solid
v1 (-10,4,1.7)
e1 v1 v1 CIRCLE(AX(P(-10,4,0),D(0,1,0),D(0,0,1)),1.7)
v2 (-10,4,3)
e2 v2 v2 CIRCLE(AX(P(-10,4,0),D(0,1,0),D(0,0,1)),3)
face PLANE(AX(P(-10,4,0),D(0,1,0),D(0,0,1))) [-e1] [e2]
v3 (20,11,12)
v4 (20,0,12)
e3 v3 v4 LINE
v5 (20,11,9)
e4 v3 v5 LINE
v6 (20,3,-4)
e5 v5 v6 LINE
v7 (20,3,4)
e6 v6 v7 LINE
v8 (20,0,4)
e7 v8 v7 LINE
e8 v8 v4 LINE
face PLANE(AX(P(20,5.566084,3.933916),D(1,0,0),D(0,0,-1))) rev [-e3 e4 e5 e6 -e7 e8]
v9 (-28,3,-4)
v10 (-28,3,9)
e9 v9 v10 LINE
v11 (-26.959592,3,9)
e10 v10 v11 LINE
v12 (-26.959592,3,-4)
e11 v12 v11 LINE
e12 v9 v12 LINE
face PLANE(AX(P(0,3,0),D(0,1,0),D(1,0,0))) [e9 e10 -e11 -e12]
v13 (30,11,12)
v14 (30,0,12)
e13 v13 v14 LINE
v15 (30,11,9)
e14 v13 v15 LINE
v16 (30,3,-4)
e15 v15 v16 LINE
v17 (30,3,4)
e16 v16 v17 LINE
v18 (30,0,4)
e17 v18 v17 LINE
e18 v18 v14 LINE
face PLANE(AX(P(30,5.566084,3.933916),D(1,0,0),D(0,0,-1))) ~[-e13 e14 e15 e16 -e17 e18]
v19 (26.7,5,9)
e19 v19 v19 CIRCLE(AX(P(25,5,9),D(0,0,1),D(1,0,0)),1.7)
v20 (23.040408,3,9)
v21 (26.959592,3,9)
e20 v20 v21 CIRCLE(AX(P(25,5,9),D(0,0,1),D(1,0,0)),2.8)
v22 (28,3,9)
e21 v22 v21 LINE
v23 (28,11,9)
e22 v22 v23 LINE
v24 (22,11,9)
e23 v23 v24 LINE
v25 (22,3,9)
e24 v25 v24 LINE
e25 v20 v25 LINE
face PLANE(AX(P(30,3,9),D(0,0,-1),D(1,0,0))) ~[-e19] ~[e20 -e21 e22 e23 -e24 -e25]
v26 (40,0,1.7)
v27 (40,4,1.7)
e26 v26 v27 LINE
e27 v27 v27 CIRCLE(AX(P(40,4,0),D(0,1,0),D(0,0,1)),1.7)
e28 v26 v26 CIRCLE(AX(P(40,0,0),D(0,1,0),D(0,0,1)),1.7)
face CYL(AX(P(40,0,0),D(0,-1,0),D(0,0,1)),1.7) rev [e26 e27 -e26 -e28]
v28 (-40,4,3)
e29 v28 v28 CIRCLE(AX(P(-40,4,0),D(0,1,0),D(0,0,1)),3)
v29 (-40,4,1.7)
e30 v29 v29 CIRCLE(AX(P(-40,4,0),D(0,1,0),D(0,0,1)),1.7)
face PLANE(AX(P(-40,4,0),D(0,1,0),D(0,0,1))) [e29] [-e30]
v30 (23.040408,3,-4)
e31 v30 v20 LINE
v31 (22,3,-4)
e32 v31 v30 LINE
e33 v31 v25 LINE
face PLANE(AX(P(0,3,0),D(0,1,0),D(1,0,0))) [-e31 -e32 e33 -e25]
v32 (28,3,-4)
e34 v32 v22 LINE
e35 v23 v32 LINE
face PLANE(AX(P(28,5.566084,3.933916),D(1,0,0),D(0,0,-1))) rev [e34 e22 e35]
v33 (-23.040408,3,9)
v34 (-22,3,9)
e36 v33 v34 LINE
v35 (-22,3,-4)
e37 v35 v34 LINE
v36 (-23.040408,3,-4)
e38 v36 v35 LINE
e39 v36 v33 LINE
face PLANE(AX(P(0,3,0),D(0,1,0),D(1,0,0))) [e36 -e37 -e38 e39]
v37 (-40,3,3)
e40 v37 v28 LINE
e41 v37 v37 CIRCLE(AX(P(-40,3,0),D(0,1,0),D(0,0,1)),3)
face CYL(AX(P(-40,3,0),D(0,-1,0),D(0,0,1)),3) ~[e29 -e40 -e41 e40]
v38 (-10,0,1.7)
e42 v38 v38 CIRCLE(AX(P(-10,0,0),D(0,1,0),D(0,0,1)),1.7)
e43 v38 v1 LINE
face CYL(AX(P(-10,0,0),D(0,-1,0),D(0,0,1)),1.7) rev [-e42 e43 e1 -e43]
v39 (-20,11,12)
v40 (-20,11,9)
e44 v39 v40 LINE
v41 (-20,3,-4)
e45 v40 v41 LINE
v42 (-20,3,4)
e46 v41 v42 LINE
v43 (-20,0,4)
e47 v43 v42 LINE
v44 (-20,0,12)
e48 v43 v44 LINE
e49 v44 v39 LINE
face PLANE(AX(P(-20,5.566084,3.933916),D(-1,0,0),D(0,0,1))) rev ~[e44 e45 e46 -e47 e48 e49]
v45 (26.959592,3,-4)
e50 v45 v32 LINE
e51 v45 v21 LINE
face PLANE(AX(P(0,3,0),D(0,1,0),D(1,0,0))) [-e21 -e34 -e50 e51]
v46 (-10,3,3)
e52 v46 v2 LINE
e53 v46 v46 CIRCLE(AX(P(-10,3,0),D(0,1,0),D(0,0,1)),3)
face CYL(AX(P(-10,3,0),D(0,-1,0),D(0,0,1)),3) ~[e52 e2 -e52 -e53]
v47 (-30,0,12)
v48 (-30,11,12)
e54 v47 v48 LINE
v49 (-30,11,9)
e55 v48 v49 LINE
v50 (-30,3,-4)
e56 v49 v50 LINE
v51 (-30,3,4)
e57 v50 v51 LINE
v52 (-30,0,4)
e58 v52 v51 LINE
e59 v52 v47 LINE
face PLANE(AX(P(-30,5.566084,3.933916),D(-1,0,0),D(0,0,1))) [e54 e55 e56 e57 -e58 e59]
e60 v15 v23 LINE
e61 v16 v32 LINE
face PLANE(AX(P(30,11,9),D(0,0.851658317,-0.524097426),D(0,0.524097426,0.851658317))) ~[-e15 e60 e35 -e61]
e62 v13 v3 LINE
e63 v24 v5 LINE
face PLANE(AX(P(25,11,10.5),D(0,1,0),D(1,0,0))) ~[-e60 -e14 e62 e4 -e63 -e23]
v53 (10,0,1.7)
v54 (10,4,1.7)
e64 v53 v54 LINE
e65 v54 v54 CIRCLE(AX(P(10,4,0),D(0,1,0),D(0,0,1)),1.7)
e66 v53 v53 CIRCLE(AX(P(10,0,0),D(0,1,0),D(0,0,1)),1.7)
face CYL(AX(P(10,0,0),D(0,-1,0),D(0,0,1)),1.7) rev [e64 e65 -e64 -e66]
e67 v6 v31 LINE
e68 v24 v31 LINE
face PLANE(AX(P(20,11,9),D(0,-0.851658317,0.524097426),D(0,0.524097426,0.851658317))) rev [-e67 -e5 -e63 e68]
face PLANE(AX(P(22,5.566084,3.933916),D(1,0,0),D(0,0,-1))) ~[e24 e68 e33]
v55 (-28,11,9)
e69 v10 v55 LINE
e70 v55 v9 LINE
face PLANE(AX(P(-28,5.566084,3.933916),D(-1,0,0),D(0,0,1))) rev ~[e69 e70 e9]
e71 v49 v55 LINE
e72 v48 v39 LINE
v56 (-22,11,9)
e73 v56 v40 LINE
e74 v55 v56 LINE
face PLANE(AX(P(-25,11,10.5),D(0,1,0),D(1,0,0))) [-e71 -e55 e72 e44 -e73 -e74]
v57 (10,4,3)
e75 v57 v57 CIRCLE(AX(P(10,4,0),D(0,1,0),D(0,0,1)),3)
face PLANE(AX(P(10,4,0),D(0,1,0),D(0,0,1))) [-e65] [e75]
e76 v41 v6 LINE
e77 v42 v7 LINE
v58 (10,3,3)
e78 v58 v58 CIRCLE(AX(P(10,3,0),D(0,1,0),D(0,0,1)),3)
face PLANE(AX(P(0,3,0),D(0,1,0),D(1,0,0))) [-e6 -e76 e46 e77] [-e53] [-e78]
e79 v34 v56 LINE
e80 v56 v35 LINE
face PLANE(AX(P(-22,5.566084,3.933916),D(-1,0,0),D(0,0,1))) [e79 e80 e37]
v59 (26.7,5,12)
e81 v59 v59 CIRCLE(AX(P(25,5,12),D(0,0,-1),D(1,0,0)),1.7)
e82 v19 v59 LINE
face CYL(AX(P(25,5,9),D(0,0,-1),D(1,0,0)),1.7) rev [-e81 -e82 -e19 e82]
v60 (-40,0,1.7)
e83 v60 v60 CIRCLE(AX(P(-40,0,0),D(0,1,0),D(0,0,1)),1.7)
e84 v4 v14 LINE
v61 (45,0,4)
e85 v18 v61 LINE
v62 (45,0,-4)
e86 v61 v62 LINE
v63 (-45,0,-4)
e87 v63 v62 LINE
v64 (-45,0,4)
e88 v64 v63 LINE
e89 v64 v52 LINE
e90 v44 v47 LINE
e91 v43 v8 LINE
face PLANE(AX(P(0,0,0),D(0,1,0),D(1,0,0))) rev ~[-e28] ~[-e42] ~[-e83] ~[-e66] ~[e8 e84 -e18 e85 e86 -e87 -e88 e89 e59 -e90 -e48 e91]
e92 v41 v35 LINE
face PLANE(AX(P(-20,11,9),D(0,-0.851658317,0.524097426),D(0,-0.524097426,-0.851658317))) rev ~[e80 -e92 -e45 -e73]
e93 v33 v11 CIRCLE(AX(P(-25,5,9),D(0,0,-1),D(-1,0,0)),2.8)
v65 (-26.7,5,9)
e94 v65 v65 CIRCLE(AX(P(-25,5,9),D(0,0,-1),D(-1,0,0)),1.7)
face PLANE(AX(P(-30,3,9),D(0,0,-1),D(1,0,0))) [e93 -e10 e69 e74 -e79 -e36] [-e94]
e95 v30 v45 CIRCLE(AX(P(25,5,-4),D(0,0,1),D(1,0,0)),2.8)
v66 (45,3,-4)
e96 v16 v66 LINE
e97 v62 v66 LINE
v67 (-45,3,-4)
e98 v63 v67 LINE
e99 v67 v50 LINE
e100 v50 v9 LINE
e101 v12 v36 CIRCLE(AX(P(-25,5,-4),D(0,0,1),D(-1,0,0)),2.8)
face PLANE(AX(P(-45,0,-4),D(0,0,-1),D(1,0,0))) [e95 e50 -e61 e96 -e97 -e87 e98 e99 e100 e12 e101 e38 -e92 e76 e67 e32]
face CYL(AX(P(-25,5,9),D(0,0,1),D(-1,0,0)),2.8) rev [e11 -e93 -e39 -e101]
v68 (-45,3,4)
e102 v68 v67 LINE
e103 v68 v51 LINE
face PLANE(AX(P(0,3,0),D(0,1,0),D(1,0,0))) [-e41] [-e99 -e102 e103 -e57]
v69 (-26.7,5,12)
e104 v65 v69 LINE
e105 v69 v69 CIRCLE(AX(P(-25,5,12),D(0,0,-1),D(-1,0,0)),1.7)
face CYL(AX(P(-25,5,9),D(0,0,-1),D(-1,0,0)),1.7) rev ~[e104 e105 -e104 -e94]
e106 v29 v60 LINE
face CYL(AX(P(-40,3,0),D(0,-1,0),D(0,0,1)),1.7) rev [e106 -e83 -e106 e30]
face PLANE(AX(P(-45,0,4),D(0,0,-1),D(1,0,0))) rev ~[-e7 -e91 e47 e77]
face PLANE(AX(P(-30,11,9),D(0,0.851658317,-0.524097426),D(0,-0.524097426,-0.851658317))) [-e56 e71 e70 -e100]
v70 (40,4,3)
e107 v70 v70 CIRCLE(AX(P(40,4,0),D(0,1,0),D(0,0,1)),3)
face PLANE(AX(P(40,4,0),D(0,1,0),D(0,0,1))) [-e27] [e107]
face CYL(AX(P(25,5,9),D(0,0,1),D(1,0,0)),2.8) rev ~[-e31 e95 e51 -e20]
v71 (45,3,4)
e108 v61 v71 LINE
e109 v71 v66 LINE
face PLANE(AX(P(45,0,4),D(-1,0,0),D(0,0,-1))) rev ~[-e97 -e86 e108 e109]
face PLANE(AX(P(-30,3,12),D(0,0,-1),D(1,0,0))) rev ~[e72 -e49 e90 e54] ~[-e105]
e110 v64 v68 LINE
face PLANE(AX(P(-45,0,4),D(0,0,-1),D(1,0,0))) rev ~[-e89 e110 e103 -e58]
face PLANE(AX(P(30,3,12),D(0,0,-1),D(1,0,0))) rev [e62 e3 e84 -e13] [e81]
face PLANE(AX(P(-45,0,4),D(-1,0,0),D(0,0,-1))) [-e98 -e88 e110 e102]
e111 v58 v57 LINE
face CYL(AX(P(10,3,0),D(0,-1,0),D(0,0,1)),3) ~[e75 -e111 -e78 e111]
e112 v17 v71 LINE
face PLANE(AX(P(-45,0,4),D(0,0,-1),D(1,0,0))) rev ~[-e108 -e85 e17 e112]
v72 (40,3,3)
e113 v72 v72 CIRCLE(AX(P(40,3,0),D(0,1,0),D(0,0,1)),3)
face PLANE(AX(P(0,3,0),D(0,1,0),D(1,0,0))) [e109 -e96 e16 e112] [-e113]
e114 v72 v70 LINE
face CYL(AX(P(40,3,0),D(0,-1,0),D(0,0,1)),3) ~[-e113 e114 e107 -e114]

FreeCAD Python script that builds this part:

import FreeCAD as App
import Part
import Sketcher
from FreeCAD import Vector
Q = App.Units.Quantity

doc = App.newDocument("Part")
body = doc.addObject("PartDesign::Body", "Body")

sketch1 = doc.addObject("Sketcher::SketchObject", "Sketch")
body.addObject(sketch1)
sketch1.AttachmentSupport = (doc.XZ_Plane, [""])
sketch1.MapMode = "FlatFace"
sketch1.addGeometry([
    Part.LineSegment(Vector(-45, -4, 0), Vector(-45, 4, 0)),
    Part.LineSegment(Vector(-45, 4, 0), Vector(45, 4, 0)),
    Part.LineSegment(Vector(45, 4, 0), Vector(45, -4, 0)),
    Part.LineSegment(Vector(45, -4, 0), Vector(-45, -4, 0)),
    Part.Circle(Vector(-40, 0, 0), Vector(0, 0, 1), 1.7),
    Part.Circle(Vector(-10, 0, 0), Vector(0, 0, 1), 1.7),
    Part.Circle(Vector(10, 0, 0), Vector(0, 0, 1), 1.7),
    Part.Circle(Vector(40, 0, 0), Vector(0, 0, 1), 1.7),
], False)
sketch1.addConstraint([
    Sketcher.Constraint("Coincident", 0, 2, 1, 1),
    Sketcher.Constraint("Coincident", 1, 2, 2, 1),
    Sketcher.Constraint("Coincident", 2, 2, 3, 1),
    Sketcher.Constraint("Coincident", 3, 2, 0, 1),
    Sketcher.Constraint("Vertical", 0),
    Sketcher.Constraint("Horizontal", 1),
    Sketcher.Constraint("Vertical", 2),
    Sketcher.Constraint("Horizontal", 3),
    Sketcher.Constraint("Equal", 4, 5),
    Sketcher.Constraint("Equal", 5, 6),
    Sketcher.Constraint("Equal", 6, 7),
    Sketcher.Constraint("Symmetric", 5, 3, 6, 3, -1, 1),
    Sketcher.Constraint("Symmetric", 4, 3, 7, 3, -1, 1),
    Sketcher.Constraint("Symmetric", 0, 2, 2, 2, -1, 1),
    Sketcher.Constraint("PointOnObject", 4, 3, -1),
    Sketcher.Constraint("PointOnObject", 5, 3, -1),
    Sketcher.Constraint("Diameter", 4, Q("3.4 mm")),
    Sketcher.Constraint("DistanceX", 1, 1, 1, 2, Q("90 mm")),
    Sketcher.Constraint("DistanceY", 0, 1, 0, 2, Q("8 mm")),
    Sketcher.Constraint("DistanceX", 4, 3, -1, 1, Q("40 mm")),
    Sketcher.Constraint("DistanceX", 5, 3, -1, 1, Q("10 mm")),
])
pad1 = doc.addObject("PartDesign::Pad", "Pad")
body.addObject(pad1)
pad1.Profile = sketch1
pad1.Length = 3
pad1.Reversed = True

sketch2 = doc.addObject("Sketcher::SketchObject", "Sketch001")
body.addObject(sketch2)
sketch2.AttachmentSupport = (doc.XY_Plane, [""])
sketch2.MapMode = "FlatFace"
sketch2.AttachmentOffset = App.Placement(Vector(0, 0, 4), App.Rotation())
sketch2.addGeometry([
    Part.LineSegment(Vector(-20, 3, 0), Vector(-20, 0, 0)),
    Part.LineSegment(Vector(-20, 0, 0), Vector(-30, 0, 0)),
    Part.LineSegment(Vector(-30, 0, 0), Vector(-30, 3, 0)),
    Part.LineSegment(Vector(-30, 3, 0), Vector(-20, 3, 0)),
], False)
sketch2.addConstraint([
    Sketcher.Constraint("Coincident", 0, 2, 1, 1),
    Sketcher.Constraint("Coincident", 1, 2, 2, 1),
    Sketcher.Constraint("Coincident", 2, 2, 3, 1),
    Sketcher.Constraint("Coincident", 3, 2, 0, 1),
    Sketcher.Constraint("Vertical", 0),
    Sketcher.Constraint("Horizontal", 1),
    Sketcher.Constraint("Vertical", 2),
    Sketcher.Constraint("Horizontal", 3),
    Sketcher.Constraint("PointOnObject", 0, 2, -1),
    Sketcher.Constraint("DistanceX", 1, 2, 1, 1, Q("10 mm")),
    Sketcher.Constraint("DistanceY", 0, 2, 0, 1, Q("3 mm")),
    Sketcher.Constraint("DistanceX", 0, 2, -1, 1, Q("20 mm")),
])
pad2 = doc.addObject("PartDesign::Pad", "Pad001")
body.addObject(pad2)
pad2.Profile = sketch2
pad2.Length = 8

sketch3 = doc.addObject("Sketcher::SketchObject", "Sketch002")
body.addObject(sketch3)
sketch3.AttachmentSupport = (doc.XZ_Plane, [""])
sketch3.MapMode = "FlatFace"
sketch3.AttachmentOffset = App.Placement(Vector(0, 0, -3), App.Rotation())
sketch3.addGeometry([
    Part.LineSegment(Vector(-30, 9, 0), Vector(-30, 12, 0)),
    Part.LineSegment(Vector(-30, 12, 0), Vector(-20, 12, 0)),
    Part.LineSegment(Vector(-20, 12, 0), Vector(-20, 9, 0)),
    Part.LineSegment(Vector(-20, 9, 0), Vector(-30, 9, 0)),
], False)
sketch3.addConstraint([
    Sketcher.Constraint("Coincident", 0, 2, 1, 1),
    Sketcher.Constraint("Coincident", 1, 2, 2, 1),
    Sketcher.Constraint("Coincident", 2, 2, 3, 1),
    Sketcher.Constraint("Coincident", 3, 2, 0, 1),
    Sketcher.Constraint("Vertical", 0),
    Sketcher.Constraint("Horizontal", 1),
    Sketcher.Constraint("Vertical", 2),
    Sketcher.Constraint("Horizontal", 3),
    Sketcher.Constraint("DistanceX", 1, 1, 1, 2, Q("10 mm")),
    Sketcher.Constraint("DistanceY", 0, 1, 0, 2, Q("3 mm")),
    Sketcher.Constraint("DistanceX", 0, 2, -1, 1, Q("30 mm")),
    Sketcher.Constraint("DistanceY", -1, 1, 0, 2, Q("12 mm")),
])
pad3 = doc.addObject("PartDesign::Pad", "Pad002")
body.addObject(pad3)
pad3.Profile = sketch3
pad3.Length = 8
pad3.Reversed = True

sketch4 = doc.addObject("Sketcher::SketchObject", "Sketch003")
body.addObject(sketch4)
sketch4.AttachmentSupport = (doc.XY_Plane, [""])
sketch4.MapMode = "FlatFace"
sketch4.AttachmentOffset = App.Placement(Vector(0, 0, 9), App.Rotation())
sketch4.addGeometry(Part.Circle(Vector(-25, 5, 0), Vector(0, 0, 1), 1.7), False)
sketch4.addConstraint([
    Sketcher.Constraint("Diameter", 0, Q("3.4 mm")),
    Sketcher.Constraint("DistanceX", 0, 3, -1, 1, Q("25 mm")),
    Sketcher.Constraint("DistanceY", -1, 1, 0, 3, Q("5 mm")),
])
pocket1 = doc.addObject("PartDesign::Pocket", "Pocket")
body.addObject(pocket1)
pocket1.Profile = sketch4
pocket1.Type = "ThroughAll"
pocket1.Reversed = True

sketch5 = doc.addObject("Sketcher::SketchObject", "Sketch004")
body.addObject(sketch5)
sketch5.AttachmentSupport = (doc.YZ_Plane, [""])
sketch5.MapMode = "FlatFace"
sketch5.AttachmentOffset = App.Placement(Vector(0, 0, -20), App.Rotation())
sketch5.addGeometry([
    Part.LineSegment(Vector(3, -4, 0), Vector(11, 9, 0)),
    Part.LineSegment(Vector(11, 9, 0), Vector(3, 9, 0)),
    Part.LineSegment(Vector(3, 9, 0), Vector(3, -4, 0)),
], False)
sketch5.addConstraint([
    Sketcher.Constraint("Coincident", 0, 2, 1, 1),
    Sketcher.Constraint("Coincident", 1, 2, 2, 1),
    Sketcher.Constraint("Coincident", 2, 2, 0, 1),
    Sketcher.Constraint("Horizontal", 1),
    Sketcher.Constraint("Vertical", 2),
    Sketcher.Constraint("DistanceX", 1, 2, 1, 1, Q("8 mm")),
    Sketcher.Constraint("DistanceY", 2, 2, 2, 1, Q("13 mm")),
    Sketcher.Constraint("DistanceX", -1, 1, 0, 2, Q("11 mm")),
    Sketcher.Constraint("DistanceY", -1, 1, 0, 2, Q("9 mm")),
])
pad4 = doc.addObject("PartDesign::Pad", "Pad003")
body.addObject(pad4)
pad4.Profile = sketch5
pad4.Length = 2
pad4.Reversed = True

sketch6 = doc.addObject("Sketcher::SketchObject", "Sketch005")
body.addObject(sketch6)
sketch6.AttachmentSupport = (doc.YZ_Plane, [""])
sketch6.MapMode = "FlatFace"
sketch6.AttachmentOffset = App.Placement(Vector(0, 0, -30), App.Rotation())
sketch6.addGeometry([
    Part.LineSegment(Vector(11, 9, 0), Vector(3, -4, 0)),
    Part.LineSegment(Vector(3, -4, 0), Vector(3, 9, 0)),
    Part.LineSegment(Vector(3, 9, 0), Vector(11, 9, 0)),
], False)
sketch6.addConstraint([
    Sketcher.Constraint("Coincident", 0, 2, 1, 1),
    Sketcher.Constraint("Coincident", 1, 2, 2, 1),
    Sketcher.Constraint("Coincident", 2, 2, 0, 1),
    Sketcher.Constraint("Vertical", 1),
    Sketcher.Constraint("Horizontal", 2),
    Sketcher.Constraint("DistanceX", 2, 1, 2, 2, Q("8 mm")),
    Sketcher.Constraint("DistanceY", 1, 1, 1, 2, Q("13 mm")),
    Sketcher.Constraint("DistanceX", -1, 1, 0, 2, Q("3 mm")),
    Sketcher.Constraint("DistanceY", 0, 2, -1, 1, Q("4 mm")),
])
pad5 = doc.addObject("PartDesign::Pad", "Pad004")
body.addObject(pad5)
pad5.Profile = sketch6
pad5.Length = 2

sketch7 = doc.addObject("Sketcher::SketchObject", "Sketch006")
body.addObject(sketch7)
sketch7.AttachmentSupport = (doc.XY_Plane, [""])
sketch7.MapMode = "FlatFace"
sketch7.AttachmentOffset = App.Placement(Vector(0, 0, 9), App.Rotation())
sketch7.addGeometry(Part.Circle(Vector(-25, 5, 0), Vector(0, 0, 1), 2.8), False)
sketch7.addConstraint([
    Sketcher.Constraint("Diameter", 0, Q("5.6 mm")),
    Sketcher.Constraint("DistanceX", 0, 3, -1, 1, Q("25 mm")),
    Sketcher.Constraint("DistanceY", -1, 1, 0, 3, Q("5 mm")),
])
pocket2 = doc.addObject("PartDesign::Pocket", "Pocket001")
body.addObject(pocket2)
pocket2.Profile = sketch7
pocket2.Type = "ThroughAll"
doc.recompute()

mirrored = doc.addObject("PartDesign::Mirrored", "Mirrored")
body.addObject(mirrored)
mirrored.Originals = [pad2, pad3, pocket1, pad4, pad5, pocket2]
mirrored.MirrorPlane = (doc.YZ_Plane, [""])
body.Tip = mirrored

sketch8 = doc.addObject("Sketcher::SketchObject", "Sketch007")
body.addObject(sketch8)
sketch8.AttachmentSupport = (doc.XZ_Plane, [""])
sketch8.MapMode = "FlatFace"
sketch8.AttachmentOffset = App.Placement(Vector(0, 0, -3), App.Rotation())
sketch8.addGeometry([
    Part.Circle(Vector(-40, 0, 0), Vector(0, 0, 1), 3),
    Part.Circle(Vector(-40, 0, 0), Vector(0, 0, 1), 1.7),
    Part.Circle(Vector(-10, 0, 0), Vector(0, 0, 1), 3),
    Part.Circle(Vector(-10, 0, 0), Vector(0, 0, 1), 1.7),
    Part.Circle(Vector(10, 0, 0), Vector(0, 0, 1), 3),
    Part.Circle(Vector(10, 0, 0), Vector(0, 0, 1), 1.7),
    Part.Circle(Vector(40, 0, 0), Vector(0, 0, 1), 3),
    Part.Circle(Vector(40, 0, 0), Vector(0, 0, 1), 1.7),
], False)
sketch8.addConstraint([
    Sketcher.Constraint("Coincident", 1, 3, 0, 3),
    Sketcher.Constraint("Coincident", 3, 3, 2, 3),
    Sketcher.Constraint("Coincident", 5, 3, 4, 3),
    Sketcher.Constraint("Coincident", 7, 3, 6, 3),
    Sketcher.Constraint("Equal", 0, 2),
    Sketcher.Constraint("Equal", 1, 3),
    Sketcher.Constraint("Equal", 2, 4),
    Sketcher.Constraint("Equal", 3, 5),
    Sketcher.Constraint("Equal", 4, 6),
    Sketcher.Constraint("Equal", 5, 7),
    Sketcher.Constraint("Symmetric", 2, 3, 4, 3, -1, 1),
    Sketcher.Constraint("Symmetric", 0, 3, 6, 3, -1, 1),
    Sketcher.Constraint("PointOnObject", 0, 3, -1),
    Sketcher.Constraint("PointOnObject", 2, 3, -1),
    Sketcher.Constraint("Diameter", 0, Q("6 mm")),
    Sketcher.Constraint("Diameter", 1, Q("3.4 mm")),
    Sketcher.Constraint("DistanceX", 0, 3, -1, 1, Q("40 mm")),
    Sketcher.Constraint("DistanceX", 2, 3, -1, 1, Q("10 mm")),
])
pad6 = doc.addObject("PartDesign::Pad", "Pad005")
body.addObject(pad6)
pad6.Profile = sketch8
pad6.Length = 1
pad6.Reversed = True

doc.recompute()
